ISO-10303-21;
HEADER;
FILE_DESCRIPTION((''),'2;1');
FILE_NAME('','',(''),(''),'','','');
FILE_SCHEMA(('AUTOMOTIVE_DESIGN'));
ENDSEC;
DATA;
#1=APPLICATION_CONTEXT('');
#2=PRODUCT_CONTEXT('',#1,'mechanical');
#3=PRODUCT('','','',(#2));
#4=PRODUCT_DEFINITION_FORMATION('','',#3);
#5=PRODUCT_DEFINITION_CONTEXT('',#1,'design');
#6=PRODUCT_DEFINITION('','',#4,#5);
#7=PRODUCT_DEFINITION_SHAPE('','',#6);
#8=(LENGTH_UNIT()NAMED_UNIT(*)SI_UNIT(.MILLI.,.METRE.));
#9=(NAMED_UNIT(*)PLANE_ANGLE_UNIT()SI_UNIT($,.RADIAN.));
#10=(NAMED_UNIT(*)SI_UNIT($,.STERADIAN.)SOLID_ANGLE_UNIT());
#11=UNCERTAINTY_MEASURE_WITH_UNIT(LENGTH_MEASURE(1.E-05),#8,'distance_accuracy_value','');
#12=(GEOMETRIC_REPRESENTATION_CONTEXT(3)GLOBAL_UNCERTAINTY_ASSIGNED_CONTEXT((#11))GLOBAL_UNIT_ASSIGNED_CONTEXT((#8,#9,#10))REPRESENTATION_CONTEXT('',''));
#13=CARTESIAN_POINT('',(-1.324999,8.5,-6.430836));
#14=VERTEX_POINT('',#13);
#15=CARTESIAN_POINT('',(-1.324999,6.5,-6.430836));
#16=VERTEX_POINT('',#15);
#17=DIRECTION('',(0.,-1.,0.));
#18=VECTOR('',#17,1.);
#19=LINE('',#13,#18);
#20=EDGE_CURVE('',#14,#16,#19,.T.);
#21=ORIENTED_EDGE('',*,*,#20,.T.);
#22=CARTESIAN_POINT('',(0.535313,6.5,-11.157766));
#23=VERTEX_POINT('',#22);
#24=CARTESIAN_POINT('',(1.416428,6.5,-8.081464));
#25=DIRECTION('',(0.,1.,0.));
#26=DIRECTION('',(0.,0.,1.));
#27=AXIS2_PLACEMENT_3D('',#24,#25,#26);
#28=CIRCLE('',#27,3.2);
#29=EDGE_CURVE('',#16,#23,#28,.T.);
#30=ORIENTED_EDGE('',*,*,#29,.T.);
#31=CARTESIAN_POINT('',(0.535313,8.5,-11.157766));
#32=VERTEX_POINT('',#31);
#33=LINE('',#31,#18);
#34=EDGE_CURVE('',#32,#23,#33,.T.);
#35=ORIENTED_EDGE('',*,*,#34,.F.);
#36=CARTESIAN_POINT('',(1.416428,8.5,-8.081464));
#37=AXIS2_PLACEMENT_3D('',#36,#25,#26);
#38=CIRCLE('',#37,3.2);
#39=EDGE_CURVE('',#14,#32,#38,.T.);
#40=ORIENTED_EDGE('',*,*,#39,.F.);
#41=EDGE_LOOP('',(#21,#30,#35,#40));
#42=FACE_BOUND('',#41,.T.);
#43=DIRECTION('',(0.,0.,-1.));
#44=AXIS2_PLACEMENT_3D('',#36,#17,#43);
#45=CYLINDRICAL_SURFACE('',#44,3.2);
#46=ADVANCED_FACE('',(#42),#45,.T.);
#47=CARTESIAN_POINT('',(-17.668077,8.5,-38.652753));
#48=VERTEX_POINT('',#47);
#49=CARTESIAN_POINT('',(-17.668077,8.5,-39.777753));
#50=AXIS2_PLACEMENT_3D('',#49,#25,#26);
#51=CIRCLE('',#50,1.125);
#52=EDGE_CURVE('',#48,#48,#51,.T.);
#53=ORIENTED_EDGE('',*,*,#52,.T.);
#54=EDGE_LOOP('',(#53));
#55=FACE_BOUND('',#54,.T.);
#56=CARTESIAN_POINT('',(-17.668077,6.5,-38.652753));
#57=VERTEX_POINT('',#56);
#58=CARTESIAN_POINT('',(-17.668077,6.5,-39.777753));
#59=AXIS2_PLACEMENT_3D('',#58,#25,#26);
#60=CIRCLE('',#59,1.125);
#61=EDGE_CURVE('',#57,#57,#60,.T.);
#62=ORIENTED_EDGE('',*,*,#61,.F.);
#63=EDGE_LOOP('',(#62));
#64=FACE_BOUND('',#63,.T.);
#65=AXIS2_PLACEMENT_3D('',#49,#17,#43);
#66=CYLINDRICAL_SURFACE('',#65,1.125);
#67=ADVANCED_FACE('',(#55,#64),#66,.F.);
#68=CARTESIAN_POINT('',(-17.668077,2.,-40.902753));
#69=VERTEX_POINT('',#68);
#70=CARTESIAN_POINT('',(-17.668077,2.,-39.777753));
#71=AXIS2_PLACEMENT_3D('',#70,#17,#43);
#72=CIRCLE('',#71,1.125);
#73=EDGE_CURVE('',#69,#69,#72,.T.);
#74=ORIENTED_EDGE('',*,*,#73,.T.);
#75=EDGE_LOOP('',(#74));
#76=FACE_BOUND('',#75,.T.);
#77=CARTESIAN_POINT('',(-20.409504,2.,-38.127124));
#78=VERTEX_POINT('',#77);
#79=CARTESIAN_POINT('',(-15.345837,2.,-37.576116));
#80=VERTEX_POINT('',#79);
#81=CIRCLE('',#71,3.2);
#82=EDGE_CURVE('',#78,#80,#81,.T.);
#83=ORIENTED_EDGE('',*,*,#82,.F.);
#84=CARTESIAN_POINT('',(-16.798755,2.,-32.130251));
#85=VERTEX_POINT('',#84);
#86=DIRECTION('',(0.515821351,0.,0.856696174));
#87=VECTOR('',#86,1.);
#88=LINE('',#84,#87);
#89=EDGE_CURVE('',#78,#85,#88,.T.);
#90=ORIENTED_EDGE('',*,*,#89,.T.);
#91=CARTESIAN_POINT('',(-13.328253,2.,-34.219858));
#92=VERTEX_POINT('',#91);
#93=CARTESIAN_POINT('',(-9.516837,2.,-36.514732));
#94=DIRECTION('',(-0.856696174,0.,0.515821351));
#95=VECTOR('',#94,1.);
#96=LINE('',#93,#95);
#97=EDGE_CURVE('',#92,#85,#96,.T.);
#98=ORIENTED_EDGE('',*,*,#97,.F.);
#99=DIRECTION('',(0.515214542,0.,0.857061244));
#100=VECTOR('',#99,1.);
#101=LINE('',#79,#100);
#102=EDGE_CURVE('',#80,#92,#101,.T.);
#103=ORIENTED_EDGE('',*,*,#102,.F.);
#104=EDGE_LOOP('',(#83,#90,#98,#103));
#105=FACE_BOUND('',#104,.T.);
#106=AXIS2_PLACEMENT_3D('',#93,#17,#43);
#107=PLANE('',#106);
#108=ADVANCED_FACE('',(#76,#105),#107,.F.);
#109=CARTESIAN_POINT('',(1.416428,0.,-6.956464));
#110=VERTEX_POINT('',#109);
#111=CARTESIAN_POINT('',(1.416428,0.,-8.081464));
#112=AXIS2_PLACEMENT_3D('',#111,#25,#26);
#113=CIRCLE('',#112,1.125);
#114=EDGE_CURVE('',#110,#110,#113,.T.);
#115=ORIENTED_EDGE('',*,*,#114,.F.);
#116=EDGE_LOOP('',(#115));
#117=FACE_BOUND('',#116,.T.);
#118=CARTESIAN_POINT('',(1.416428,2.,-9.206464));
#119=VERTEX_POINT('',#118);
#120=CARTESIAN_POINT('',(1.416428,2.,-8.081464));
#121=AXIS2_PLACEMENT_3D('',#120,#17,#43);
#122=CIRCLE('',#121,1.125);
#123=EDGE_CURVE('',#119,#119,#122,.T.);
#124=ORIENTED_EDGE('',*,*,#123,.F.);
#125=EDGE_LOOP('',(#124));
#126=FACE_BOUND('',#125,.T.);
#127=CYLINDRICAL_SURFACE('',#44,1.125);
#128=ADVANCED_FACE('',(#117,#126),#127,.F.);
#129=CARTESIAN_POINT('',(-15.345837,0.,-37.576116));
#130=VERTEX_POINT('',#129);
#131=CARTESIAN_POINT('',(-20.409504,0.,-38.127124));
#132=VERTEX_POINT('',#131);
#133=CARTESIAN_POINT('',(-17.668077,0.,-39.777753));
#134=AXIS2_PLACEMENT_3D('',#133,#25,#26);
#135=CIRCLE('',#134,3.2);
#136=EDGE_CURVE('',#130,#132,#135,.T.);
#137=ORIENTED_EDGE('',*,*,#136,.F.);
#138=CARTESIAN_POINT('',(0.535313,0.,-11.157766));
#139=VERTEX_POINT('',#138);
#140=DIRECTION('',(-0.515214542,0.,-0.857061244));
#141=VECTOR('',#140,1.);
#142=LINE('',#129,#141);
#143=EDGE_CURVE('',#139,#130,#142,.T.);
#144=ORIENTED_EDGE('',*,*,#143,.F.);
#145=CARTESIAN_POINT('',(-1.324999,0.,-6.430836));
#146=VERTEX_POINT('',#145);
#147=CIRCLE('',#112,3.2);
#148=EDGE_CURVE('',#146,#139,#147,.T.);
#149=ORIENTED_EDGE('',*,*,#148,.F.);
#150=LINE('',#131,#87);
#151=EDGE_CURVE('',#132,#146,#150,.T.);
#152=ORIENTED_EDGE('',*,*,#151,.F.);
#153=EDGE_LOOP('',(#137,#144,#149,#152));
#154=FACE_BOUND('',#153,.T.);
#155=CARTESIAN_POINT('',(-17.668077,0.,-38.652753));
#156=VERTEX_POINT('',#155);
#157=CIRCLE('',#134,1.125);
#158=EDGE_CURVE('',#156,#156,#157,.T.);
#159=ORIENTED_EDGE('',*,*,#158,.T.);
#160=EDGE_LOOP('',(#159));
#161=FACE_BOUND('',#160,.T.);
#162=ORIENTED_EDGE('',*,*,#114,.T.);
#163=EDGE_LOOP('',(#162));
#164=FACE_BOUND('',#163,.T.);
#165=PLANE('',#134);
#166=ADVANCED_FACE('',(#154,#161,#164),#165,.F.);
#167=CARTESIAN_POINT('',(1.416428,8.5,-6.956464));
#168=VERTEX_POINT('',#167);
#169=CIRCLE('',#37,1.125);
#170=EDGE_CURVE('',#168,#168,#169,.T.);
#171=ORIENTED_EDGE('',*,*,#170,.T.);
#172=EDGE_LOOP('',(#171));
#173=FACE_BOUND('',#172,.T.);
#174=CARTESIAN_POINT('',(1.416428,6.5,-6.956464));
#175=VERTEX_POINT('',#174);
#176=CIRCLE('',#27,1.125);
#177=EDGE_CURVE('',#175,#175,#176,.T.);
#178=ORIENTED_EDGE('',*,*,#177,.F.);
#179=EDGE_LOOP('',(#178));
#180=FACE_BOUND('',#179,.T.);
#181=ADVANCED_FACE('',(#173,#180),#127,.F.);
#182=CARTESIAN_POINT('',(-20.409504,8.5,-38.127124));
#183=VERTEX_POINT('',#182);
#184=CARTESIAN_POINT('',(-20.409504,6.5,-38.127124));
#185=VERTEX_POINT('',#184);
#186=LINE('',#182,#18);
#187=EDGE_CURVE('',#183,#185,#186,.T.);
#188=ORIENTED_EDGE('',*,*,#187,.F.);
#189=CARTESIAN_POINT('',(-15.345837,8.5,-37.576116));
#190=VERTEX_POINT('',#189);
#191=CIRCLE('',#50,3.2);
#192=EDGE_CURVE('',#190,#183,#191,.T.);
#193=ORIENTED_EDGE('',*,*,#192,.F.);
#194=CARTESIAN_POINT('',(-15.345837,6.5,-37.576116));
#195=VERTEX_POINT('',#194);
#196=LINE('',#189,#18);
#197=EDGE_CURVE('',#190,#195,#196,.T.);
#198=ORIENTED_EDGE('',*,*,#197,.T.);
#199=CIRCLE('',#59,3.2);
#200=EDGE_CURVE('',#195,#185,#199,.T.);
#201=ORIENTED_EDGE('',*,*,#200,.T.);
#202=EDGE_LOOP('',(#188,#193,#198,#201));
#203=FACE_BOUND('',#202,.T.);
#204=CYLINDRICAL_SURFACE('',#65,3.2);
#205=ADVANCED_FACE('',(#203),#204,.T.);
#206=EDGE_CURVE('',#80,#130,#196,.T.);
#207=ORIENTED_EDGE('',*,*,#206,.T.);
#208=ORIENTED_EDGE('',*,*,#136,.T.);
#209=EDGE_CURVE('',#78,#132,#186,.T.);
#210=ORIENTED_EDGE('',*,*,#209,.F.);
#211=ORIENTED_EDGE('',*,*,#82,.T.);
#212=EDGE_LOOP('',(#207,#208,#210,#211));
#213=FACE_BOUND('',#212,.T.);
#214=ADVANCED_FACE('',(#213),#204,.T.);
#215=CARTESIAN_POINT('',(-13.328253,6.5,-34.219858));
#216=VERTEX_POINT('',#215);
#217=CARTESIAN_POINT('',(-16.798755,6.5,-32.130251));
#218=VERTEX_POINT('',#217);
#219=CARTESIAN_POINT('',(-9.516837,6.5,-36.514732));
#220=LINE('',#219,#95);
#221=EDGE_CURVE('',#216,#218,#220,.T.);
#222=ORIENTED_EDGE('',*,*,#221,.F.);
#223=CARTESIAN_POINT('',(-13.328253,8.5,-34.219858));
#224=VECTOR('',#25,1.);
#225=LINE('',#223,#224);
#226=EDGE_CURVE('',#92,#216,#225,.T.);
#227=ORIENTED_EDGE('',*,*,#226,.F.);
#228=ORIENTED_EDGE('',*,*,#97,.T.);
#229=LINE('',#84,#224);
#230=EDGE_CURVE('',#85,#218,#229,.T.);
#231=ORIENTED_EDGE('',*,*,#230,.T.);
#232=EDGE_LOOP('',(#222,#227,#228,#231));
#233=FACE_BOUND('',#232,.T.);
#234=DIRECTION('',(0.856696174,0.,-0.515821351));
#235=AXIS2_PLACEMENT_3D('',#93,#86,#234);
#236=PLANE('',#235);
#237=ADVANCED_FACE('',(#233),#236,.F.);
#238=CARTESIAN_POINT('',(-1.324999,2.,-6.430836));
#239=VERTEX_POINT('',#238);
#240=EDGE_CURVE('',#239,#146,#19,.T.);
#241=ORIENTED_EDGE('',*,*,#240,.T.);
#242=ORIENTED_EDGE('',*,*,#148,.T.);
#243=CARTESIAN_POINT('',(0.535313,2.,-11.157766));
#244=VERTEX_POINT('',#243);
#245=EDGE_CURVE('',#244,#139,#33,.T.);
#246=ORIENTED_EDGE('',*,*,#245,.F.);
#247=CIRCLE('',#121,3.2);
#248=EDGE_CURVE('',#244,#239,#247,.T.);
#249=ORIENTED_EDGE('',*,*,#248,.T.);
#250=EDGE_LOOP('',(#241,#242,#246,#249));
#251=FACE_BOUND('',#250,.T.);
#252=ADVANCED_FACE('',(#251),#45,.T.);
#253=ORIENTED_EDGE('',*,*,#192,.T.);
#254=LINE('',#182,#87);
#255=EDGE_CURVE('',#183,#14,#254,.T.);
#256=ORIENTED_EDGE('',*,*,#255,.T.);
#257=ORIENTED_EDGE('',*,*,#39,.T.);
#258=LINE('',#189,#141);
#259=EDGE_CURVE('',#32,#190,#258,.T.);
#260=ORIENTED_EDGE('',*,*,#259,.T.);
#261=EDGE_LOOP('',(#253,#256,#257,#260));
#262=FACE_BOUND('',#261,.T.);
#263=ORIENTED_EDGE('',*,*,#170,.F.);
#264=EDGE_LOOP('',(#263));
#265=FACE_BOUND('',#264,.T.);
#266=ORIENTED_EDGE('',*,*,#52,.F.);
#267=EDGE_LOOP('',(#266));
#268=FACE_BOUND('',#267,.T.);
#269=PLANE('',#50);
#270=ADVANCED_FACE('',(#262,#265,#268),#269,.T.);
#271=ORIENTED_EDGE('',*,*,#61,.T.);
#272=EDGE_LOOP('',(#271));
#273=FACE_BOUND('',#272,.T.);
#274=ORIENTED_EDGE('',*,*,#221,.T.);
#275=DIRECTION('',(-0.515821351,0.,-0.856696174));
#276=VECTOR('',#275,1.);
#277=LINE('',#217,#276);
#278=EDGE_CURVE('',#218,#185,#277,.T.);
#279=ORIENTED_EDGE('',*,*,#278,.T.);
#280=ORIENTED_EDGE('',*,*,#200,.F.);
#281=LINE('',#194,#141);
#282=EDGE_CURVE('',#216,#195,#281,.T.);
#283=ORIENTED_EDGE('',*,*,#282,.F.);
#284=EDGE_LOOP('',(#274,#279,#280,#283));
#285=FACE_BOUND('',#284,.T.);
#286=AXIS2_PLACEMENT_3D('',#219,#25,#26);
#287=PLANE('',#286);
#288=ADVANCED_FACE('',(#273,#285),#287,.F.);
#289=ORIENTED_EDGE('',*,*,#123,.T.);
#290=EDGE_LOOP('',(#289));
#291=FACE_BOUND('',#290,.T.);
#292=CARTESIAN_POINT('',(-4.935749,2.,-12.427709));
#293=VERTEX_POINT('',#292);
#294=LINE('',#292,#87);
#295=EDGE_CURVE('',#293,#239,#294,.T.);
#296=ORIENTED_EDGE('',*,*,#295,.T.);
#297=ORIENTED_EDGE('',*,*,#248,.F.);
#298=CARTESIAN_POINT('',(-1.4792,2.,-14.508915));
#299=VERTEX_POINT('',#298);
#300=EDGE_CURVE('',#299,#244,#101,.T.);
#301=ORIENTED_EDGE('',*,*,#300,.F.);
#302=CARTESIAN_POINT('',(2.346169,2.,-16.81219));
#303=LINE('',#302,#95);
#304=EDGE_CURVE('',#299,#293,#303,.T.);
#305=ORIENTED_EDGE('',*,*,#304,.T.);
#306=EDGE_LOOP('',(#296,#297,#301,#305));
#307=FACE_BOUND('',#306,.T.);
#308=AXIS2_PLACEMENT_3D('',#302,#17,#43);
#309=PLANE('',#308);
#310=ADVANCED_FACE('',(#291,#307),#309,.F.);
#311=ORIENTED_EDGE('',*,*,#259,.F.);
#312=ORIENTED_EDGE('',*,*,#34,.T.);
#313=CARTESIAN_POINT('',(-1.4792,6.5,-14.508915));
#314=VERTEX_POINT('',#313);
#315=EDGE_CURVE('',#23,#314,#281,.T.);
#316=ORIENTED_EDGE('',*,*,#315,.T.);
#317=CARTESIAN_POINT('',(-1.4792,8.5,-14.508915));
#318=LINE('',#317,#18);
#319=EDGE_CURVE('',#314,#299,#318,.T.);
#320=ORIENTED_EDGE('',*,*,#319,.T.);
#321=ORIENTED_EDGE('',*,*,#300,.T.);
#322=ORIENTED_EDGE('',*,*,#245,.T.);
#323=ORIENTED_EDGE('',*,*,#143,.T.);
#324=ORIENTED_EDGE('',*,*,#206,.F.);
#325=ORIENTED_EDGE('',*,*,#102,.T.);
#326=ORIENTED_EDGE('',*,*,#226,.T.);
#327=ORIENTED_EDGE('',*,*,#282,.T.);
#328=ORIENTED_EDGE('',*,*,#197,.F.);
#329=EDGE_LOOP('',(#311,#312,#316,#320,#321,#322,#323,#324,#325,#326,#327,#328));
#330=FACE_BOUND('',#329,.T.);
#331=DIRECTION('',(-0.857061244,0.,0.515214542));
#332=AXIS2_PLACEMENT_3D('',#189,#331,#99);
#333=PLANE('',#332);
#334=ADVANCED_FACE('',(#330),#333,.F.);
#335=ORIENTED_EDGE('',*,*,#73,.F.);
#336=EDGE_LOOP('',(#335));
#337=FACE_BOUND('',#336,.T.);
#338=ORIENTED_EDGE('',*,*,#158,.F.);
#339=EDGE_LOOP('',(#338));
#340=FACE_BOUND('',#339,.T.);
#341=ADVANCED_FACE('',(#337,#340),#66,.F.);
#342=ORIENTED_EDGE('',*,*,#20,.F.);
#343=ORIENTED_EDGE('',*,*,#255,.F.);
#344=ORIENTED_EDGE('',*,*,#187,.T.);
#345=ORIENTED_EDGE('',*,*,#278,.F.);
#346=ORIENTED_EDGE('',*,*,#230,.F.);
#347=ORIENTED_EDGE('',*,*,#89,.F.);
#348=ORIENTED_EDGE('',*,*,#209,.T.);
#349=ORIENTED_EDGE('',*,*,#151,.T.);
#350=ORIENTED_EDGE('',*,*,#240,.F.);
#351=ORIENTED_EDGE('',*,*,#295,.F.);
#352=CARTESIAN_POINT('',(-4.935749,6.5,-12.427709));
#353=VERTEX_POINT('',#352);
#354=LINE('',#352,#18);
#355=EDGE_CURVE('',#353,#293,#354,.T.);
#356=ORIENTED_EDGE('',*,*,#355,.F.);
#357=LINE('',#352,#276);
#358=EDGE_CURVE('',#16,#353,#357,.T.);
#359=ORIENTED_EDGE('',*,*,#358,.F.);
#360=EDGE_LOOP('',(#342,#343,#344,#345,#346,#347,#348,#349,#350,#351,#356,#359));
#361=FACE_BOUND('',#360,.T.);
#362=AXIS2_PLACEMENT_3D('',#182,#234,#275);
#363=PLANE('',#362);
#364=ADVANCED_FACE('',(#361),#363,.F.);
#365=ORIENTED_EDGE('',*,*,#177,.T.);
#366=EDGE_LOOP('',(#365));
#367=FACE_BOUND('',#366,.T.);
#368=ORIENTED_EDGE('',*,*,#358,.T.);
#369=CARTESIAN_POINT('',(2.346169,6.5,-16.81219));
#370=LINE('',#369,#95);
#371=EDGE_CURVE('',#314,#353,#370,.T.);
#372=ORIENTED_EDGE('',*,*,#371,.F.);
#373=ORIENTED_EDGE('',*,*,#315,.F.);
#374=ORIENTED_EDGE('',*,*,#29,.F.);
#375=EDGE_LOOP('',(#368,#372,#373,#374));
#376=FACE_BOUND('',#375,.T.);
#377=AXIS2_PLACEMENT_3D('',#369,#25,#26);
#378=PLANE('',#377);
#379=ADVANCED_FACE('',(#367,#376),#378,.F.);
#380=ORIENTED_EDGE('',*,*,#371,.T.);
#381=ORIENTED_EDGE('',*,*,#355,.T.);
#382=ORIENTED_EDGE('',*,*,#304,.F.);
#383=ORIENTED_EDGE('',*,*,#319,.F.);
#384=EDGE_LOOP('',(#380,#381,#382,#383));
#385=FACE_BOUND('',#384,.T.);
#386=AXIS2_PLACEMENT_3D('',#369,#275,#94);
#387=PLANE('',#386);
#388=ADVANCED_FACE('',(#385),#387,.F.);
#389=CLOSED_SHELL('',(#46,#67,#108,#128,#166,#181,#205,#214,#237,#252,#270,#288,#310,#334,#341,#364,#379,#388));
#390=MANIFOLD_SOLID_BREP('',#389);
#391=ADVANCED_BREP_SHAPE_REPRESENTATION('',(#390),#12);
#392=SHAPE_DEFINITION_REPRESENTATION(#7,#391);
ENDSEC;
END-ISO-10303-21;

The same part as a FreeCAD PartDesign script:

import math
import FreeCAD as App
import Part
import Sketcher
from FreeCAD import Vector
Q = App.Units.Quantity


def add_polygon(sketch, points):
    """Adds a closed chain of lines whose ends are joined by coincident constraints."""
    first, n = sketch.GeometryCount, len(points)
    for a, b in zip(points, points[1:] + points[:1]):
        sketch.addGeometry(Part.LineSegment(App.Vector(*a, 0), App.Vector(*b, 0)), False)
    for i in range(n):
        sketch.addConstraint(Sketcher.Constraint("Coincident", first + i, 2, first + (i + 1) % n, 1))

doc = App.newDocument("Part")
body = doc.addObject("PartDesign::Body", "Body")

# Sketch on XZ plane
sketch1 = doc.addObject("Sketcher::SketchObject", "Sketch")
body.addObject(sketch1)
sketch1.AttachmentSupport = (doc.XZ_Plane, [""])
sketch1.MapMode = "FlatFace"
sketch1.addGeometry([
    Part.LineSegment(Vector(-20.409504, -38.127124, 0), Vector(-1.324999, -6.430836, 0)),  # 0
    Part.ArcOfCircle(Part.Circle(Vector(1.416428, -8.081464, 0), Vector(0, 0, 1), 3.2), math.radians(-105.982792), math.radians(148.947629)),  # 1
    Part.LineSegment(Vector(0.535313, -11.157766, 0), Vector(-15.345837, -37.576116, 0)),  # 2
    Part.ArcOfCircle(Part.Circle(Vector(-17.668077, -39.777753, 0), Vector(0, 0, 1), 3.2), math.radians(148.947629), math.radians(403.472901)),  # 3
    Part.Circle(Vector(1.416428, -8.081464, 0), Vector(0, 0, 1), 1.125),  # 4
    Part.Circle(Vector(-17.668077, -39.777753, 0), Vector(0, 0, 1), 1.125),  # 5
], False)
sketch1.addConstraint([
    Sketcher.Constraint("Coincident", 0, 2, 1, 2),
    Sketcher.Constraint("Coincident", 1, 1, 2, 1),
    Sketcher.Constraint("Coincident", 2, 2, 3, 2),
    Sketcher.Constraint("Coincident", 3, 1, 0, 1),
    Sketcher.Constraint("Coincident", 4, 3, 1, 3),
    Sketcher.Constraint("Coincident", 5, 3, 3, 3),
    Sketcher.Constraint("Radius", 1, Q("3.2 mm")),
    Sketcher.Constraint("Radius", 3, Q("3.2 mm")),
    Sketcher.Constraint("Diameter", 4, Q("2.25 mm")),
    Sketcher.Constraint("Diameter", 5, Q("2.25 mm")),
    Sketcher.Constraint("DistanceX", 0, 2, -1, 1, Q("1.324999 mm")),
    Sketcher.Constraint("DistanceX", -1, 1, 1, 3, Q("1.416428 mm")),
    Sketcher.Constraint("DistanceY", 3, 3, 1, 3, Q("31.696289 mm")),
    Sketcher.Constraint("DistanceY", 1, 1, 0, 2, Q("4.726931 mm")),
    Sketcher.Constraint("DistanceX", 3, 3, 1, 1, Q("18.203389 mm")),
    Sketcher.Constraint("DistanceX", 3, 3, 2, 2, Q("2.32224 mm")),
    Sketcher.Constraint("DistanceY", 3, 3, 3, 1, Q("1.650628 mm")),
    Sketcher.Constraint("DistanceY", 1, 3, -1, 1, Q("8.081464 mm")),
])
pad1 = doc.addObject("PartDesign::Pad", "Pad")
body.addObject(pad1)
pad1.Profile = sketch1
pad1.Length = 8.5
pad1.Reversed = True

# Sketch on an angled plane
sketch2 = doc.addObject("Sketcher::SketchObject", "Sketch001")
body.addObject(sketch2)
sketch2.Placement = App.Placement(Vector(1.869346, 0, -1.125543), App.Rotation(Vector(0.515821351, 0, 0.856696174), Vector(0, 1.000000001, 0), Vector(-0.856696174, 0, 0.515821351), "ZXY"))
add_polygon(sketch2, [(-57.457356, 6.5), (-57.457356, 2), (-36.19102, 2), (-36.19102, 6.5)])  # lines 0-3
add_polygon(sketch2, [(-13.192735, 6.5), (-13.192735, 2), (3.252434, 2), (3.252434, 6.5)])  # lines 4-7
sketch2.addConstraint([
    Sketcher.Constraint("Vertical", 0),
    Sketcher.Constraint("Horizontal", 1),
    Sketcher.Constraint("Vertical", 2),
    Sketcher.Constraint("Horizontal", 3),
    Sketcher.Constraint("Vertical", 4),
    Sketcher.Constraint("Horizontal", 5),
    Sketcher.Constraint("Vertical", 6),
    Sketcher.Constraint("Horizontal", 7),
    Sketcher.Constraint("Horizontal", 1, 2, 4, 2),
    Sketcher.Constraint("Horizontal", 3, 2, 6, 2),
    Sketcher.Constraint("DistanceY", 0, 2, 0, 1, Q("4.5 mm")),
    Sketcher.Constraint("DistanceY", -1, 1, 0, 2, Q("2 mm")),
    Sketcher.Constraint("DistanceX", 5, 1, 5, 2, Q("16.445169 mm")),
    Sketcher.Constraint("DistanceX", 1, 1, 1, 2, Q("21.266336 mm")),
    Sketcher.Constraint("DistanceX", 1, 2, -1, 1, Q("36.19102 mm")),
    Sketcher.Constraint("DistanceX", 0, 2, 4, 2, Q("44.264621 mm")),
])
pocket1 = doc.addObject("PartDesign::Pocket", "Pocket")
body.addObject(pocket1)
pocket1.Profile = sketch2
pocket1.Length = 8.5

doc.recompute()
